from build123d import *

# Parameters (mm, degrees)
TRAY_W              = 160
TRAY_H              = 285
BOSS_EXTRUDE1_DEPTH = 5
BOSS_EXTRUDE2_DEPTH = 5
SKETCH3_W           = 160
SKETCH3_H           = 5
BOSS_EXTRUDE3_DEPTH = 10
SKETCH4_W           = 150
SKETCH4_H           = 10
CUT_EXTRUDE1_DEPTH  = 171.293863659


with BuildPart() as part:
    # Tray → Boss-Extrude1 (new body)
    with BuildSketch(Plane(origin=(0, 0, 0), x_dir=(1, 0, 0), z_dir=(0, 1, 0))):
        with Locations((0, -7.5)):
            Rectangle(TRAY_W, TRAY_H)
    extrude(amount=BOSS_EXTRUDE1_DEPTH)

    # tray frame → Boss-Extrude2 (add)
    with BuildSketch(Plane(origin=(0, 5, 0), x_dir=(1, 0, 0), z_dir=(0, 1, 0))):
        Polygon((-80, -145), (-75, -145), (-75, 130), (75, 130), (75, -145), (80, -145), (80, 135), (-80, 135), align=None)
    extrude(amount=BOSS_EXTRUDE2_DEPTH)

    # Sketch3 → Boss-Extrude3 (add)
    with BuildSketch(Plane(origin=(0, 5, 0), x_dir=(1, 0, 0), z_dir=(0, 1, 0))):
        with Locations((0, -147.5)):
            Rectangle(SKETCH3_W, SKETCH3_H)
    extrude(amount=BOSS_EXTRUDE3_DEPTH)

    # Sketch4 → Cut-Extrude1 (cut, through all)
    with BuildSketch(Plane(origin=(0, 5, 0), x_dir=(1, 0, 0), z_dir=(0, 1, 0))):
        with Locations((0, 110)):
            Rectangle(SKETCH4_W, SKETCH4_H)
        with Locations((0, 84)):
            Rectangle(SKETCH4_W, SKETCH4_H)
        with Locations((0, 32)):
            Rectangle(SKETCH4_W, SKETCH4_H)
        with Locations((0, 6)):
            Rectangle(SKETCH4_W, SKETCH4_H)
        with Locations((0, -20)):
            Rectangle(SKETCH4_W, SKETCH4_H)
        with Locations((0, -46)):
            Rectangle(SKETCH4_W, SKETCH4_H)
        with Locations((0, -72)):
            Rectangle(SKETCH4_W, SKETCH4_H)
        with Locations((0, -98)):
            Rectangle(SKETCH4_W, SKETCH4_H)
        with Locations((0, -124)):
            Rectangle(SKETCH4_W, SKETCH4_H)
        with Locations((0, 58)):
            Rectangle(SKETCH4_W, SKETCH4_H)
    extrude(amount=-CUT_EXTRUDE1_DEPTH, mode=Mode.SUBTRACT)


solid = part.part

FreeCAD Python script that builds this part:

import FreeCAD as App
import Part
import Sketcher


def add_polygon(sketch, points):
    """Adds a closed chain of lines whose ends are joined by coincident constraints."""
    first, n = sketch.GeometryCount, len(points)
    for a, b in zip(points, points[1:] + points[:1]):
        sketch.addGeometry(Part.LineSegment(App.Vector(*a, 0), App.Vector(*b, 0)), False)
    for i in range(n):
        sketch.addConstraint(Sketcher.Constraint("Coincident", first + i, 2, first + (i + 1) % n, 1))

doc = App.newDocument("Part")
body = doc.addObject("PartDesign::Body", "Body")

# Sketch on XZ plane
sketch1 = body.newObject("Sketcher::SketchObject", "Sketch")
sketch1.AttachmentSupport = (doc.getObject("XZ_Plane"), [""])
sketch1.MapMode = "FlatFace"
add_polygon(sketch1, [(-80, -135), (-80, 150), (80, 150), (80, -135)])  # lines 0-3
sketch1.addConstraint([
    Sketcher.Constraint("Vertical", 0),
    Sketcher.Constraint("Horizontal", 1),
    Sketcher.Constraint("Vertical", 2),
    Sketcher.Constraint("Horizontal", 3),
    Sketcher.Constraint("DistanceX", 1, 1, 1, 2, 160.0),
    Sketcher.Constraint("DistanceY", 0, 1, 0, 2, 285.0),
    Sketcher.Constraint("DistanceX", 0, 2, -1, 1, 80.0),
    Sketcher.Constraint("DistanceY", -1, 1, 0, 2, 150.0),
])
pad1 = body.newObject("PartDesign::Pad", "Pad")
pad1.Profile = sketch1
pad1.Length = 5
pad1.Reversed = True

# Sketch on XZ plane
sketch2 = body.newObject("Sketcher::SketchObject", "Sketch001")
sketch2.AttachmentSupport = (doc.getObject("XZ_Plane"), [""])
sketch2.MapMode = "FlatFace"
sketch2.AttachmentOffset = App.Placement(App.Vector(0, 0, -5), App.Rotation())
add_polygon(sketch2, [(-80, 145), (-75, 145), (-75, -130), (75, -130), (75, 145), (80, 145), (80, -135), (-80, -135)])  # lines 0-7
sketch2.addConstraint([
    Sketcher.Constraint("Horizontal", 0),
    Sketcher.Constraint("Vertical", 1),
    Sketcher.Constraint("Horizontal", 2),
    Sketcher.Constraint("Vertical", 3),
    Sketcher.Constraint("Horizontal", 4),
    Sketcher.Constraint("Vertical", 5),
    Sketcher.Constraint("Horizontal", 6),
    Sketcher.Constraint("Vertical", 7),
    Sketcher.Constraint("Symmetric", 0, 2, 3, 2, -2),
    Sketcher.Constraint("Equal", 0, 4),
    Sketcher.Constraint("DistanceX", 0, 1, 0, 2, 5.0),
    Sketcher.Constraint("DistanceX", 2, 1, 2, 2, 150.0),
    Sketcher.Constraint("DistanceY", 1, 2, 1, 1, 275.0),
    Sketcher.Constraint("DistanceY", 5, 2, 5, 1, 280.0),
    Sketcher.Constraint("DistanceY", -1, 1, 0, 2, 145.0),
])
pad2 = body.newObject("PartDesign::Pad", "Pad001")
pad2.Profile = sketch2
pad2.Length = 5
pad2.Reversed = True

# Sketch on XZ plane
sketch3 = body.newObject("Sketcher::SketchObject", "Sketch002")
sketch3.AttachmentSupport = (doc.getObject("XZ_Plane"), [""])
sketch3.MapMode = "FlatFace"
sketch3.AttachmentOffset = App.Placement(App.Vector(0, 0, -5), App.Rotation())
add_polygon(sketch3, [(-80, 145), (-80, 150), (80, 150), (80, 145)])  # lines 0-3
sketch3.addConstraint([
    Sketcher.Constraint("Vertical", 0),
    Sketcher.Constraint("Horizontal", 1),
    Sketcher.Constraint("Vertical", 2),
    Sketcher.Constraint("Horizontal", 3),
    Sketcher.Constraint("DistanceX", 1, 1, 1, 2, 160.0),
    Sketcher.Constraint("DistanceY", 0, 1, 0, 2, 5.0),
    Sketcher.Constraint("DistanceX", 0, 2, -1, 1, 80.0),
    Sketcher.Constraint("DistanceY", -1, 1, 0, 2, 150.0),
])
pad3 = body.newObject("PartDesign::Pad", "Pad002")
pad3.Profile = sketch3
pad3.Length = 10
pad3.Reversed = True

# Sketch on XZ plane
sketch4 = body.newObject("Sketcher::SketchObject", "Sketch003")
sketch4.AttachmentSupport = (doc.getObject("XZ_Plane"), [""])
sketch4.MapMode = "FlatFace"
sketch4.AttachmentOffset = App.Placement(App.Vector(0, 0, -5), App.Rotation())
add_polygon(sketch4, [(-75, -115), (-75, -105), (75, -105), (75, -115)])  # lines 0-3
add_polygon(sketch4, [(-75, -89), (-75, -79), (75, -79), (75, -89)])  # lines 4-7
add_polygon(sketch4, [(-75, -37), (-75, -27), (75, -27), (75, -37)])  # lines 8-11
add_polygon(sketch4, [(-75, -11), (-75, -1), (75, -1), (75, -11)])  # lines 12-15
add_polygon(sketch4, [(-75, 15), (-75, 25), (75, 25), (75, 15)])  # lines 16-19
add_polygon(sketch4, [(-75, 41), (-75, 51), (75, 51), (75, 41)])  # lines 20-23
add_polygon(sketch4, [(-75, 67), (-75, 77), (75, 77), (75, 67)])  # lines 24-27
add_polygon(sketch4, [(-75, 93), (-75, 103), (75, 103), (75, 93)])  # lines 28-31
add_polygon(sketch4, [(-75, 119), (-75, 129), (75, 129), (75, 119)])  # lines 32-35
add_polygon(sketch4, [(-75, -63), (-75, -53), (75, -53), (75, -63)])  # lines 36-39
sketch4.addConstraint([
    Sketcher.Constraint("Vertical", 0),
    Sketcher.Constraint("Horizontal", 1),
    Sketcher.Constraint("Vertical", 2),
    Sketcher.Constraint("Horizontal", 3),
    Sketcher.Constraint("Vertical", 4),
    Sketcher.Constraint("Horizontal", 5),
    Sketcher.Constraint("Vertical", 6),
    Sketcher.Constraint("Horizontal", 7),
    Sketcher.Constraint("Vertical", 8),
    Sketcher.Constraint("Horizontal", 9),
    Sketcher.Constraint("Vertical", 10),
    Sketcher.Constraint("Horizontal", 11),
    Sketcher.Constraint("Vertical", 12),
    Sketcher.Constraint("Horizontal", 13),
    Sketcher.Constraint("Vertical", 14),
    Sketcher.Constraint("Horizontal", 15),
    Sketcher.Constraint("Vertical", 16),
    Sketcher.Constraint("Horizontal", 17),
    Sketcher.Constraint("Vertical", 18),
    Sketcher.Constraint("Horizontal", 19),
    Sketcher.Constraint("Vertical", 20),
    Sketcher.Constraint("Horizontal", 21),
    Sketcher.Constraint("Vertical", 22),
    Sketcher.Constraint("Horizontal", 23),
    Sketcher.Constraint("Vertical", 24),
    Sketcher.Constraint("Horizontal", 25),
    Sketcher.Constraint("Vertical", 26),
    Sketcher.Constraint("Horizontal", 27),
    Sketcher.Constraint("Vertical", 28),
    Sketcher.Constraint("Horizontal", 29),
    Sketcher.Constraint("Vertical", 30),
    Sketcher.Constraint("Horizontal", 31),
    Sketcher.Constraint("Vertical", 32),
    Sketcher.Constraint("Horizontal", 33),
    Sketcher.Constraint("Vertical", 34),
    Sketcher.Constraint("Horizontal", 35),
    Sketcher.Constraint("Vertical", 36),
    Sketcher.Constraint("Horizontal", 37),
    Sketcher.Constraint("Vertical", 38),
    Sketcher.Constraint("Horizontal", 39),
    Sketcher.Constraint("Vertical", 3, 2, 4, 2),
    Sketcher.Constraint("Vertical", 2, 2, 5, 2),
    Sketcher.Constraint("Vertical", 7, 2, 8, 2),
    Sketcher.Constraint("Vertical", 6, 2, 9, 2),
    Sketcher.Constraint("Vertical", 11, 2, 12, 2),
    Sketcher.Constraint("Vertical", 10, 2, 13, 2),
    Sketcher.Constraint("Vertical", 15, 2, 16, 2),
    Sketcher.Constraint("Vertical", 14, 2, 17, 2),
    Sketcher.Constraint("Vertical", 19, 2, 20, 2),
    Sketcher.Constraint("Vertical", 18, 2, 21, 2),
    Sketcher.Constraint("Vertical", 23, 2, 24, 2),
    Sketcher.Constraint("Vertical", 22, 2, 25, 2),
    Sketcher.Constraint("Vertical", 27, 2, 28, 2),
    Sketcher.Constraint("Vertical", 26, 2, 29, 2),
    Sketcher.Constraint("Vertical", 31, 2, 32, 2),
    Sketcher.Constraint("Vertical", 30, 2, 33, 2),
    Sketcher.Constraint("Vertical", 35, 2, 36, 2),
    Sketcher.Constraint("Vertical", 34, 2, 37, 2),
    Sketcher.Constraint("Equal", 2, 4),
    Sketcher.Constraint("Equal", 6, 8),
    Sketcher.Constraint("Equal", 10, 12),
    Sketcher.Constraint("Equal", 14, 16),
    Sketcher.Constraint("Equal", 18, 20),
    Sketcher.Constraint("Equal", 22, 24),
    Sketcher.Constraint("Equal", 26, 28),
    Sketcher.Constraint("Equal", 30, 32),
    Sketcher.Constraint("Equal", 34, 36),
    Sketcher.Constraint("DistanceX", 1, 1, 1, 2, 150.0),
    Sketcher.Constraint("DistanceY", 0, 1, 0, 2, 10.0),
    Sketcher.Constraint("DistanceX", 0, 2, -1, 1, 75.0),
    Sketcher.Constraint("DistanceY", 0, 2, -1, 1, 105.0),
    Sketcher.Constraint("DistanceY", 4, 2, -1, 1, 79.0),
    Sketcher.Constraint("DistanceY", 8, 2, -1, 1, 27.0),
    Sketcher.Constraint("DistanceY", 12, 2, -1, 1, 1.0),
    Sketcher.Constraint("DistanceY", -1, 1, 16, 2, 25.0),
    Sketcher.Constraint("DistanceY", -1, 1, 20, 2, 51.0),
    Sketcher.Constraint("DistanceY", -1, 1, 24, 2, 77.0),
    Sketcher.Constraint("DistanceY", -1, 1, 28, 2, 103.0),
    Sketcher.Constraint("DistanceY", -1, 1, 32, 2, 129.0),
    Sketcher.Constraint("DistanceY", 36, 2, -1, 1, 53.0),
])
pocket1 = body.newObject("PartDesign::Pocket", "Pocket")
pocket1.Profile = sketch4
pocket1.Type = "ThroughAll"
pocket1.Reversed = True

doc.recompute()
